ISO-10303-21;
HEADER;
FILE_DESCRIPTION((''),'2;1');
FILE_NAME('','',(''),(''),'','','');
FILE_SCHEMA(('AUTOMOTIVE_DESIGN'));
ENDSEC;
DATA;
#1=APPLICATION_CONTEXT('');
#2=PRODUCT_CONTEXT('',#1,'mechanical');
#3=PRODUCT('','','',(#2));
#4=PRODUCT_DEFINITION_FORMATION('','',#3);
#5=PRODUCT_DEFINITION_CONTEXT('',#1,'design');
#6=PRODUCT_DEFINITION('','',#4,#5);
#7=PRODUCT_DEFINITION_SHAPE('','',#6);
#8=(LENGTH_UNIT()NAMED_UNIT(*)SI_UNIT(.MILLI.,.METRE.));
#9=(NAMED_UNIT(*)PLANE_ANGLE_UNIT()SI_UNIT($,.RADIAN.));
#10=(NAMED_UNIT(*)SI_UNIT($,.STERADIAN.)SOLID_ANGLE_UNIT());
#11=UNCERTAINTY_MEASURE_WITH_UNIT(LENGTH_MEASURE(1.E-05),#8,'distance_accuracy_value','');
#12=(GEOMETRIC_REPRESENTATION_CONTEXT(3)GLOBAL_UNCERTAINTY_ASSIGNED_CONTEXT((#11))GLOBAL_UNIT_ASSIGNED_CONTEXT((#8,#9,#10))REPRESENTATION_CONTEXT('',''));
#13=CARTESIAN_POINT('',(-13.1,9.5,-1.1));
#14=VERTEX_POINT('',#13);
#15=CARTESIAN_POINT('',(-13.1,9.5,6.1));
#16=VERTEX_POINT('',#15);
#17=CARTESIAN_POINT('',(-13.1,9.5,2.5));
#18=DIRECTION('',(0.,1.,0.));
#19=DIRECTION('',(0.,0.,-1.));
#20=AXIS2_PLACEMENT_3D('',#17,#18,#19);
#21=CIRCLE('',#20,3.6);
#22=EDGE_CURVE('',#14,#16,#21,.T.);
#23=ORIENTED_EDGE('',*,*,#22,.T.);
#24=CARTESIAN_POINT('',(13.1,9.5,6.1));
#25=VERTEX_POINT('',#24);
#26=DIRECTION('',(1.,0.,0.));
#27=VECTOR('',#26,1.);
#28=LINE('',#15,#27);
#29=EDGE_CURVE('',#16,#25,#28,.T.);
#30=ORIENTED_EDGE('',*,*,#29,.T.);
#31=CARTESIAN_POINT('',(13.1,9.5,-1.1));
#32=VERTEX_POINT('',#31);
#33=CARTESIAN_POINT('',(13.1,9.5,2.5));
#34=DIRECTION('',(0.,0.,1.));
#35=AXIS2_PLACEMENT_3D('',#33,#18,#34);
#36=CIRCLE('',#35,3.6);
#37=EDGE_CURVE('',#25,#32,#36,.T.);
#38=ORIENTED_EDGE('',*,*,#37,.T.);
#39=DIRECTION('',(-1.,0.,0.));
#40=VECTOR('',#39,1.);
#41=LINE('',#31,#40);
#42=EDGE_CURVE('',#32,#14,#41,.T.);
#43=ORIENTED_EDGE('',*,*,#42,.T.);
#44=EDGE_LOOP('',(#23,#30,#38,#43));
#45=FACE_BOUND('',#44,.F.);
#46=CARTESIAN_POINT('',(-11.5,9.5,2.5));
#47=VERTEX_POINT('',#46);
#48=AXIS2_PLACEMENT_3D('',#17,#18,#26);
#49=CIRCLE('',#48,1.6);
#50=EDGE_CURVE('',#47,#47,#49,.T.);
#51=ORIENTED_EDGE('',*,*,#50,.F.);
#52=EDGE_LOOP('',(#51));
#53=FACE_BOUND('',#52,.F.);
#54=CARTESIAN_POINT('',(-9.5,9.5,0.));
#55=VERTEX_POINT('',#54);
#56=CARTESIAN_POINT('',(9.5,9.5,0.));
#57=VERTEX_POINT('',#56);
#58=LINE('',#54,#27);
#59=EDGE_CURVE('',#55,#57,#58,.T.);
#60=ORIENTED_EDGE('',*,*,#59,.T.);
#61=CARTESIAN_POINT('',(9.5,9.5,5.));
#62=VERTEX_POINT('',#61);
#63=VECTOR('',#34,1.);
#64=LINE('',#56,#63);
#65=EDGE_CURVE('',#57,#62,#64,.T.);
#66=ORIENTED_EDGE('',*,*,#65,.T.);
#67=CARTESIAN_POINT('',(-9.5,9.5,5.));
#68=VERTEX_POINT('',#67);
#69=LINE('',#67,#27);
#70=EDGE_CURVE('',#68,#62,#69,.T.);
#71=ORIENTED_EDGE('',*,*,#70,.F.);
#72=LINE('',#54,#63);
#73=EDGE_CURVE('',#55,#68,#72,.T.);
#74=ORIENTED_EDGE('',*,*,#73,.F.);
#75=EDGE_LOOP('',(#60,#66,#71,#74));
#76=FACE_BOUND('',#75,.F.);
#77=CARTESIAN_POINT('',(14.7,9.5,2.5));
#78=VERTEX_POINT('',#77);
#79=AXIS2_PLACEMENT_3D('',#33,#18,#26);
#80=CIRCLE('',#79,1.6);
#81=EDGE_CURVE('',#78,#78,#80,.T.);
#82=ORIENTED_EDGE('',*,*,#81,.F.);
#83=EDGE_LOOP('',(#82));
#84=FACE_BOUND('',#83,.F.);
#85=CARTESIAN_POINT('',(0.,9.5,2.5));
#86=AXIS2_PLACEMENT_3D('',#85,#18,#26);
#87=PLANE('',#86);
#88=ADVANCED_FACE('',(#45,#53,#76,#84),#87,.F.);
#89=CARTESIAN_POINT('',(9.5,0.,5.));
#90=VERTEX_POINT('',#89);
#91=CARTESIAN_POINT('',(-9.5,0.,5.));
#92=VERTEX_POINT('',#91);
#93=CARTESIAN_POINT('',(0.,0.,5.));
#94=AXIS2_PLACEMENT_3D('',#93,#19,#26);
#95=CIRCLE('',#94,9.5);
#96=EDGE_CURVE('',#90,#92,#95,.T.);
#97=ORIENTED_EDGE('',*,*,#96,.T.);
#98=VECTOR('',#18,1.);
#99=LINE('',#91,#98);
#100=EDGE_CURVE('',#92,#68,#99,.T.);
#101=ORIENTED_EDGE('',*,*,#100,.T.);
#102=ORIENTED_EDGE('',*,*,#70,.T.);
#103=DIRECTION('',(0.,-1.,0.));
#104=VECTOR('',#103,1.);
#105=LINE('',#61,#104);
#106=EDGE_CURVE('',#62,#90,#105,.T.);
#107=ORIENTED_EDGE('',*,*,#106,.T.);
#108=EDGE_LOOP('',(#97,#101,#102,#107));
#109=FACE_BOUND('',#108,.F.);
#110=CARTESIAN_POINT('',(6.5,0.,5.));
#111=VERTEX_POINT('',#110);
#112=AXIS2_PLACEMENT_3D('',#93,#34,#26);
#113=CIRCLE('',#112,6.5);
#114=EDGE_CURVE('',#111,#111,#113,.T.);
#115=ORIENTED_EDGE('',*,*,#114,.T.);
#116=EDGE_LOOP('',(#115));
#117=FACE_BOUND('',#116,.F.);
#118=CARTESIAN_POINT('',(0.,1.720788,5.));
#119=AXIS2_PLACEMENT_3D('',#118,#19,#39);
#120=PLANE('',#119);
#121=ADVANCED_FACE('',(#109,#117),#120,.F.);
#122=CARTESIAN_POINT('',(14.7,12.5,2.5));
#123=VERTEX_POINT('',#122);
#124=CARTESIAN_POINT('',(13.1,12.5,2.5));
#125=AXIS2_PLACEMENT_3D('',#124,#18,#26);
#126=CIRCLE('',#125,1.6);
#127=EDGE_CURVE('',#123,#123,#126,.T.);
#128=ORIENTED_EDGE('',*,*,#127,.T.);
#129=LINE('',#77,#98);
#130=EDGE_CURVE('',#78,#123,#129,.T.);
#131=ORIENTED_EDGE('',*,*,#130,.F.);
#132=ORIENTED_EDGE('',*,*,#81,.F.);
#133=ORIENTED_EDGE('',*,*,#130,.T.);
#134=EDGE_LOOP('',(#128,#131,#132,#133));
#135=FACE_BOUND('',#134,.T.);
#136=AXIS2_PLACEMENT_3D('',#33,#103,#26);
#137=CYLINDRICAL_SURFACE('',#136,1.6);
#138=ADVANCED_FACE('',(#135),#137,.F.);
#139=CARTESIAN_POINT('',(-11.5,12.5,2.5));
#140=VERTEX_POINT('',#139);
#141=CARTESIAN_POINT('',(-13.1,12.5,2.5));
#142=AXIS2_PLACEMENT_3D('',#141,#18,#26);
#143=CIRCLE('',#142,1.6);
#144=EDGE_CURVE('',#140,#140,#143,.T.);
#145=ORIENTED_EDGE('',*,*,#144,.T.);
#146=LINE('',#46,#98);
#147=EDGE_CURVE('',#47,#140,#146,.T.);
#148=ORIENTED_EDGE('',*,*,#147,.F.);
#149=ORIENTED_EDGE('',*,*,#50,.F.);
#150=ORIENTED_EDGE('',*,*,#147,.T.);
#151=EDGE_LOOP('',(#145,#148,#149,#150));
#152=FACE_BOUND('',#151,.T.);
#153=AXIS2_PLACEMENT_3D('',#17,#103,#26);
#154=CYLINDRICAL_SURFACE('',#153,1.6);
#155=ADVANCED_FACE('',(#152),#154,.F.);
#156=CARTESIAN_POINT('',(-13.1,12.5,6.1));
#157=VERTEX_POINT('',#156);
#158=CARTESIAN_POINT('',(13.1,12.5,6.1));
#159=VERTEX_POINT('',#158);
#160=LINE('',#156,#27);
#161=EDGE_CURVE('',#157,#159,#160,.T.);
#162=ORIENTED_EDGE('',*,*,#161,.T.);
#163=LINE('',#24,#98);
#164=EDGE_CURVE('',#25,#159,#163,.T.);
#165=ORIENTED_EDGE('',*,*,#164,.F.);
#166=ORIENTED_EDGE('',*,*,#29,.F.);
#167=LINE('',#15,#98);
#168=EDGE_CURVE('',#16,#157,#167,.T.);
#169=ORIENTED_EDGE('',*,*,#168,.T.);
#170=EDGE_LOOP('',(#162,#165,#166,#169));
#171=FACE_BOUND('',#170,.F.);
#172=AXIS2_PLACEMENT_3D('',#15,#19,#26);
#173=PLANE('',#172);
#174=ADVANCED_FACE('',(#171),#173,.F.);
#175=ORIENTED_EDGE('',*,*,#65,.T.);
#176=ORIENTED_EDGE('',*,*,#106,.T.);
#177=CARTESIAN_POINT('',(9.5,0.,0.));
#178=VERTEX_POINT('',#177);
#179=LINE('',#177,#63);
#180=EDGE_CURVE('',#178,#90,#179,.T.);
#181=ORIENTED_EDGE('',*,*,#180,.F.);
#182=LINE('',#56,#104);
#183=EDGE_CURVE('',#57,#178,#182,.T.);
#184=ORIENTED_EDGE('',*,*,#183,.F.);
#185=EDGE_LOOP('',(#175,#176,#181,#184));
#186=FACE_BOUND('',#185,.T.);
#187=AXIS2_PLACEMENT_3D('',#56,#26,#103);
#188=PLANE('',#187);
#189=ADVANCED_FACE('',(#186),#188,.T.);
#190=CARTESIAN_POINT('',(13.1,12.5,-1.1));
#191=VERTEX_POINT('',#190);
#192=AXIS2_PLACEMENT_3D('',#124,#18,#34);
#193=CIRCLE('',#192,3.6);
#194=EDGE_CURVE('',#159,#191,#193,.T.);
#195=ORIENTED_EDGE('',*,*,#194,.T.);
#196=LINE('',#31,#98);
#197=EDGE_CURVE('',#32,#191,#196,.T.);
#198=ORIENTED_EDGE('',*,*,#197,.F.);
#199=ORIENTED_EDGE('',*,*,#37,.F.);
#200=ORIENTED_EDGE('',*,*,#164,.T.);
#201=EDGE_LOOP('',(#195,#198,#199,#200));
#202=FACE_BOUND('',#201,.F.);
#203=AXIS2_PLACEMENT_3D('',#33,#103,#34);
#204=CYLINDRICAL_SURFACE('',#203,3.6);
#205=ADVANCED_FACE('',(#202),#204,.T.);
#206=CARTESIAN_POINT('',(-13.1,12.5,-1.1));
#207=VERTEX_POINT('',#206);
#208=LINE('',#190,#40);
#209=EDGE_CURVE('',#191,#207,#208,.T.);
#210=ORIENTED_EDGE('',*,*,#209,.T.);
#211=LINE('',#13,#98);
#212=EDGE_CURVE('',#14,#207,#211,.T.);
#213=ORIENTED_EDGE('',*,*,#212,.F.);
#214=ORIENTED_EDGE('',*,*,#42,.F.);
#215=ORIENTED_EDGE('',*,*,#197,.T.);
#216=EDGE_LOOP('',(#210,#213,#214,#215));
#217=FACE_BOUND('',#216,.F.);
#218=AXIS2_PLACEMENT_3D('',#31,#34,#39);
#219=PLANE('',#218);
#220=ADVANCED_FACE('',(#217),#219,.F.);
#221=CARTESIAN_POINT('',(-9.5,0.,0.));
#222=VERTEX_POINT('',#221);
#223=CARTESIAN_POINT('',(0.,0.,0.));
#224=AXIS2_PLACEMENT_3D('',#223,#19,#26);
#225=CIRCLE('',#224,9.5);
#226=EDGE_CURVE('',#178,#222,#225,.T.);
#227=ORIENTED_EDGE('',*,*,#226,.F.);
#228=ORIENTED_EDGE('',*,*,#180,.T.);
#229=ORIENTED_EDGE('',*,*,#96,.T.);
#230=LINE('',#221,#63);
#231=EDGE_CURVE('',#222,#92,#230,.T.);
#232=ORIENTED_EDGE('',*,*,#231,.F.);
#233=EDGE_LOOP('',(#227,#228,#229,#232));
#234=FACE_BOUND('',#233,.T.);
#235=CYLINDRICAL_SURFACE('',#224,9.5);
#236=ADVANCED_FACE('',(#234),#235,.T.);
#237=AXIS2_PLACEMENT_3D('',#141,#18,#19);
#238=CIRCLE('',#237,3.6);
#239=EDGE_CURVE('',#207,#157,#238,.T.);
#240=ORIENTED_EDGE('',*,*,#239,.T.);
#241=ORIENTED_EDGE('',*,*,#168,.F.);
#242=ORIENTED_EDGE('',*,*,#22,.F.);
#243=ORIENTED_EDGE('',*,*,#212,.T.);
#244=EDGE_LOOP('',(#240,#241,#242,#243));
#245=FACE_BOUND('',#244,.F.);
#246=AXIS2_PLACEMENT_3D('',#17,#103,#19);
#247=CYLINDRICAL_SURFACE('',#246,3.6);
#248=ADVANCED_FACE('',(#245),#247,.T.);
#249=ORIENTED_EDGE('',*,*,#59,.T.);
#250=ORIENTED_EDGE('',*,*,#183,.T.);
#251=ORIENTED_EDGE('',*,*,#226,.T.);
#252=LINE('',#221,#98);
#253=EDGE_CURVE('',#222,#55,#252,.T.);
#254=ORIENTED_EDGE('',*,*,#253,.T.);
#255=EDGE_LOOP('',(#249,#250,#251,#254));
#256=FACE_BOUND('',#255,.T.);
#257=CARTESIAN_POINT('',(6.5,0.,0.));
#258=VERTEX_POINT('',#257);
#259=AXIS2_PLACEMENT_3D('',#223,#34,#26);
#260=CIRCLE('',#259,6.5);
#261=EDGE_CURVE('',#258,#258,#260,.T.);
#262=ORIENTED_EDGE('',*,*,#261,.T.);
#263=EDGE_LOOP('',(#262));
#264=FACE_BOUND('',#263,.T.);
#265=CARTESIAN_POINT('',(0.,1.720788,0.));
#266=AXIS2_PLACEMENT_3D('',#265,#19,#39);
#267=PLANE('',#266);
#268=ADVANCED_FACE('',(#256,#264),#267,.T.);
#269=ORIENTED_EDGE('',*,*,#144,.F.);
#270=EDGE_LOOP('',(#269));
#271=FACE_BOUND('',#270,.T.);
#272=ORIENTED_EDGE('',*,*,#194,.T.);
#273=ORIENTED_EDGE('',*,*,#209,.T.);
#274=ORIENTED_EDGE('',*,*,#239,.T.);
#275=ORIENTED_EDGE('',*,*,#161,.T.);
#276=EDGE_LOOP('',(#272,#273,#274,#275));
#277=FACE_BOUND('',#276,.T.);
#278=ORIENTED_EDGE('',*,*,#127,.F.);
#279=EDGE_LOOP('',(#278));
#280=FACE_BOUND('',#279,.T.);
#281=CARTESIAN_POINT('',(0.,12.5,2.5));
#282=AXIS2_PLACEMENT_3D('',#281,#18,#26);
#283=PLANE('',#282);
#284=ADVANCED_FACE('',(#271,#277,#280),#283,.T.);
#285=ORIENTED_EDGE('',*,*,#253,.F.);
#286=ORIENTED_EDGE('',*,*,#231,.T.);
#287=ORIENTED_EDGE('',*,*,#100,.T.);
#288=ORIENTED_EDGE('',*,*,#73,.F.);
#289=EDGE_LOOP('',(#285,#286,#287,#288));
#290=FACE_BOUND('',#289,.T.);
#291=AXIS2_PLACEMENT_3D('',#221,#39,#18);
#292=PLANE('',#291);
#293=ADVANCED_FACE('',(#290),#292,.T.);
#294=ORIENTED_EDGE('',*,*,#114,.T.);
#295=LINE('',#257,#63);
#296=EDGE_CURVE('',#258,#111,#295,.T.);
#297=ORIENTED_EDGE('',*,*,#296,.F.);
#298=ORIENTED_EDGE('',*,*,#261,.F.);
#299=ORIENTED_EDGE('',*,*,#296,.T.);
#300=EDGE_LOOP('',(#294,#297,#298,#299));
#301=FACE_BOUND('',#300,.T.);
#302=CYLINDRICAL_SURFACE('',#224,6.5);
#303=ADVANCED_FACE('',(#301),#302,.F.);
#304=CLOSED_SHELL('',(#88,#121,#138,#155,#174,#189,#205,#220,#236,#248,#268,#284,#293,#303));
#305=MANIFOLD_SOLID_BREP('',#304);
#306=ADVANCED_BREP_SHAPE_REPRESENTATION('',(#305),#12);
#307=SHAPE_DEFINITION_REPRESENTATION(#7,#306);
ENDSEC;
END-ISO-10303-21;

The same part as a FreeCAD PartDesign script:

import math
import FreeCAD as App
import Part
import Sketcher

V = App.Vector
Q = App.Units.Quantity

doc = App.newDocument("Part")
body = doc.addObject("PartDesign::Body", "Body")

sketch1 = body.newObject("Sketcher::SketchObject", "Sketch")
sketch1.AttachmentSupport = (doc.getObject("XY_Plane"), [""])
sketch1.MapMode = "FlatFace"
sketch1.addGeometry(Part.LineSegment(V(-10, 10, 0), V(-10, 0, 0)), False)
sketch1.addGeometry(Part.ArcOfCircle(Part.Circle(V(0, 0, 0), V(0, 0, 1), 10), math.radians(180), math.radians(360)), False)
sketch1.addGeometry(Part.LineSegment(V(10, 0, 0), V(10, 10, 0)), False)
sketch1.addGeometry(Part.LineSegment(V(10, 10, 0), V(-10, 10, 0)), False)
sketch1.addGeometry(Part.Circle(V(0, 0, 0), V(0, 0, 1), 6), False)
sketch1.addConstraint(Sketcher.Constraint("Tangent", 0, 2, 1, 1))
sketch1.addConstraint(Sketcher.Constraint("Tangent", 1, 2, 2, 1))
sketch1.addConstraint(Sketcher.Constraint("Coincident", 2, 2, 3, 1))
sketch1.addConstraint(Sketcher.Constraint("Coincident", 3, 2, 0, 1))
sketch1.addConstraint(Sketcher.Constraint("Vertical", 0))
sketch1.addConstraint(Sketcher.Constraint("Vertical", 2))
sketch1.addConstraint(Sketcher.Constraint("Horizontal", 3))
sketch1.addConstraint(Sketcher.Constraint("Coincident", 1, 3, -1, 1))
sketch1.addConstraint(Sketcher.Constraint("Coincident", 4, 3, -1, 1))
sketch1.addConstraint(Sketcher.Constraint("Diameter", 4, Q("13 mm")))
sketch1.addConstraint(Sketcher.Constraint("Radius", 1, Q("9.5 mm")))
sketch1.addConstraint(Sketcher.Constraint("DistanceY", 0, 2, 0, 1, Q("9.5 mm")))
pad1 = body.newObject("PartDesign::Pad", "Pad")
pad1.Profile = sketch1
pad1.Length = 5

sketch2 = body.newObject("Sketcher::SketchObject", "Sketch001")
sketch2.AttachmentSupport = (doc.getObject("XZ_Plane"), [""])
sketch2.MapMode = "FlatFace"
sketch2.AttachmentOffset = App.Placement(V(0, 0, -9.5), App.Rotation())
sketch2.addGeometry(Part.LineSegment(V(13.1, -1.1, 0), V(-13.1, -1.1, 0)), False)
sketch2.addGeometry(Part.ArcOfCircle(Part.Circle(V(-13.1, 2.5, 0), V(0, 0, 1), 3.6), math.radians(90), math.radians(270)), False)
sketch2.addGeometry(Part.LineSegment(V(-13.1, 6.1, 0), V(13.1, 6.1, 0)), False)
sketch2.addGeometry(Part.ArcOfCircle(Part.Circle(V(13.1, 2.5, 0), V(0, 0, 1), 3.6), math.radians(-90), math.radians(90)), False)
sketch2.addGeometry(Part.Circle(V(-13.1, 2.5, 0), V(0, 0, 1), 1.6), False)
sketch2.addGeometry(Part.Circle(V(13.1, 2.5, 0), V(0, 0, 1), 1.6), False)
sketch2.addConstraint(Sketcher.Constraint("Tangent", 0, 2, 1, 2))
sketch2.addConstraint(Sketcher.Constraint("Tangent", 1, 1, 2, 1))
sketch2.addConstraint(Sketcher.Constraint("Tangent", 2, 2, 3, 2))
sketch2.addConstraint(Sketcher.Constraint("Tangent", 3, 1, 0, 1))
sketch2.addConstraint(Sketcher.Constraint("Horizontal", 0))
sketch2.addConstraint(Sketcher.Constraint("Horizontal", 2))
sketch2.addConstraint(Sketcher.Constraint("Coincident", 4, 3, 1, 3))
sketch2.addConstraint(Sketcher.Constraint("Coincident", 5, 3, 3, 3))
sketch2.addConstraint(Sketcher.Constraint("Equal", 4, 5))
sketch2.addConstraint(Sketcher.Constraint("Diameter", 4, Q("3.2 mm")))
sketch2.addConstraint(Sketcher.Constraint("Radius", 1, Q("3.6 mm")))
sketch2.addConstraint(Sketcher.Constraint("DistanceX", 0, 2, 0, 1, Q("26.2 mm")))
sketch2.addConstraint(Sketcher.Constraint("DistanceX", 1, 3, -1, 1, Q("13.1 mm")))
sketch2.addConstraint(Sketcher.Constraint("DistanceY", -1, 1, 1, 3, Q("2.5 mm")))
pad2 = body.newObject("PartDesign::Pad", "Pad001")
pad2.Profile = sketch2
pad2.Length = 3
pad2.Reversed = True

doc.recompute()
